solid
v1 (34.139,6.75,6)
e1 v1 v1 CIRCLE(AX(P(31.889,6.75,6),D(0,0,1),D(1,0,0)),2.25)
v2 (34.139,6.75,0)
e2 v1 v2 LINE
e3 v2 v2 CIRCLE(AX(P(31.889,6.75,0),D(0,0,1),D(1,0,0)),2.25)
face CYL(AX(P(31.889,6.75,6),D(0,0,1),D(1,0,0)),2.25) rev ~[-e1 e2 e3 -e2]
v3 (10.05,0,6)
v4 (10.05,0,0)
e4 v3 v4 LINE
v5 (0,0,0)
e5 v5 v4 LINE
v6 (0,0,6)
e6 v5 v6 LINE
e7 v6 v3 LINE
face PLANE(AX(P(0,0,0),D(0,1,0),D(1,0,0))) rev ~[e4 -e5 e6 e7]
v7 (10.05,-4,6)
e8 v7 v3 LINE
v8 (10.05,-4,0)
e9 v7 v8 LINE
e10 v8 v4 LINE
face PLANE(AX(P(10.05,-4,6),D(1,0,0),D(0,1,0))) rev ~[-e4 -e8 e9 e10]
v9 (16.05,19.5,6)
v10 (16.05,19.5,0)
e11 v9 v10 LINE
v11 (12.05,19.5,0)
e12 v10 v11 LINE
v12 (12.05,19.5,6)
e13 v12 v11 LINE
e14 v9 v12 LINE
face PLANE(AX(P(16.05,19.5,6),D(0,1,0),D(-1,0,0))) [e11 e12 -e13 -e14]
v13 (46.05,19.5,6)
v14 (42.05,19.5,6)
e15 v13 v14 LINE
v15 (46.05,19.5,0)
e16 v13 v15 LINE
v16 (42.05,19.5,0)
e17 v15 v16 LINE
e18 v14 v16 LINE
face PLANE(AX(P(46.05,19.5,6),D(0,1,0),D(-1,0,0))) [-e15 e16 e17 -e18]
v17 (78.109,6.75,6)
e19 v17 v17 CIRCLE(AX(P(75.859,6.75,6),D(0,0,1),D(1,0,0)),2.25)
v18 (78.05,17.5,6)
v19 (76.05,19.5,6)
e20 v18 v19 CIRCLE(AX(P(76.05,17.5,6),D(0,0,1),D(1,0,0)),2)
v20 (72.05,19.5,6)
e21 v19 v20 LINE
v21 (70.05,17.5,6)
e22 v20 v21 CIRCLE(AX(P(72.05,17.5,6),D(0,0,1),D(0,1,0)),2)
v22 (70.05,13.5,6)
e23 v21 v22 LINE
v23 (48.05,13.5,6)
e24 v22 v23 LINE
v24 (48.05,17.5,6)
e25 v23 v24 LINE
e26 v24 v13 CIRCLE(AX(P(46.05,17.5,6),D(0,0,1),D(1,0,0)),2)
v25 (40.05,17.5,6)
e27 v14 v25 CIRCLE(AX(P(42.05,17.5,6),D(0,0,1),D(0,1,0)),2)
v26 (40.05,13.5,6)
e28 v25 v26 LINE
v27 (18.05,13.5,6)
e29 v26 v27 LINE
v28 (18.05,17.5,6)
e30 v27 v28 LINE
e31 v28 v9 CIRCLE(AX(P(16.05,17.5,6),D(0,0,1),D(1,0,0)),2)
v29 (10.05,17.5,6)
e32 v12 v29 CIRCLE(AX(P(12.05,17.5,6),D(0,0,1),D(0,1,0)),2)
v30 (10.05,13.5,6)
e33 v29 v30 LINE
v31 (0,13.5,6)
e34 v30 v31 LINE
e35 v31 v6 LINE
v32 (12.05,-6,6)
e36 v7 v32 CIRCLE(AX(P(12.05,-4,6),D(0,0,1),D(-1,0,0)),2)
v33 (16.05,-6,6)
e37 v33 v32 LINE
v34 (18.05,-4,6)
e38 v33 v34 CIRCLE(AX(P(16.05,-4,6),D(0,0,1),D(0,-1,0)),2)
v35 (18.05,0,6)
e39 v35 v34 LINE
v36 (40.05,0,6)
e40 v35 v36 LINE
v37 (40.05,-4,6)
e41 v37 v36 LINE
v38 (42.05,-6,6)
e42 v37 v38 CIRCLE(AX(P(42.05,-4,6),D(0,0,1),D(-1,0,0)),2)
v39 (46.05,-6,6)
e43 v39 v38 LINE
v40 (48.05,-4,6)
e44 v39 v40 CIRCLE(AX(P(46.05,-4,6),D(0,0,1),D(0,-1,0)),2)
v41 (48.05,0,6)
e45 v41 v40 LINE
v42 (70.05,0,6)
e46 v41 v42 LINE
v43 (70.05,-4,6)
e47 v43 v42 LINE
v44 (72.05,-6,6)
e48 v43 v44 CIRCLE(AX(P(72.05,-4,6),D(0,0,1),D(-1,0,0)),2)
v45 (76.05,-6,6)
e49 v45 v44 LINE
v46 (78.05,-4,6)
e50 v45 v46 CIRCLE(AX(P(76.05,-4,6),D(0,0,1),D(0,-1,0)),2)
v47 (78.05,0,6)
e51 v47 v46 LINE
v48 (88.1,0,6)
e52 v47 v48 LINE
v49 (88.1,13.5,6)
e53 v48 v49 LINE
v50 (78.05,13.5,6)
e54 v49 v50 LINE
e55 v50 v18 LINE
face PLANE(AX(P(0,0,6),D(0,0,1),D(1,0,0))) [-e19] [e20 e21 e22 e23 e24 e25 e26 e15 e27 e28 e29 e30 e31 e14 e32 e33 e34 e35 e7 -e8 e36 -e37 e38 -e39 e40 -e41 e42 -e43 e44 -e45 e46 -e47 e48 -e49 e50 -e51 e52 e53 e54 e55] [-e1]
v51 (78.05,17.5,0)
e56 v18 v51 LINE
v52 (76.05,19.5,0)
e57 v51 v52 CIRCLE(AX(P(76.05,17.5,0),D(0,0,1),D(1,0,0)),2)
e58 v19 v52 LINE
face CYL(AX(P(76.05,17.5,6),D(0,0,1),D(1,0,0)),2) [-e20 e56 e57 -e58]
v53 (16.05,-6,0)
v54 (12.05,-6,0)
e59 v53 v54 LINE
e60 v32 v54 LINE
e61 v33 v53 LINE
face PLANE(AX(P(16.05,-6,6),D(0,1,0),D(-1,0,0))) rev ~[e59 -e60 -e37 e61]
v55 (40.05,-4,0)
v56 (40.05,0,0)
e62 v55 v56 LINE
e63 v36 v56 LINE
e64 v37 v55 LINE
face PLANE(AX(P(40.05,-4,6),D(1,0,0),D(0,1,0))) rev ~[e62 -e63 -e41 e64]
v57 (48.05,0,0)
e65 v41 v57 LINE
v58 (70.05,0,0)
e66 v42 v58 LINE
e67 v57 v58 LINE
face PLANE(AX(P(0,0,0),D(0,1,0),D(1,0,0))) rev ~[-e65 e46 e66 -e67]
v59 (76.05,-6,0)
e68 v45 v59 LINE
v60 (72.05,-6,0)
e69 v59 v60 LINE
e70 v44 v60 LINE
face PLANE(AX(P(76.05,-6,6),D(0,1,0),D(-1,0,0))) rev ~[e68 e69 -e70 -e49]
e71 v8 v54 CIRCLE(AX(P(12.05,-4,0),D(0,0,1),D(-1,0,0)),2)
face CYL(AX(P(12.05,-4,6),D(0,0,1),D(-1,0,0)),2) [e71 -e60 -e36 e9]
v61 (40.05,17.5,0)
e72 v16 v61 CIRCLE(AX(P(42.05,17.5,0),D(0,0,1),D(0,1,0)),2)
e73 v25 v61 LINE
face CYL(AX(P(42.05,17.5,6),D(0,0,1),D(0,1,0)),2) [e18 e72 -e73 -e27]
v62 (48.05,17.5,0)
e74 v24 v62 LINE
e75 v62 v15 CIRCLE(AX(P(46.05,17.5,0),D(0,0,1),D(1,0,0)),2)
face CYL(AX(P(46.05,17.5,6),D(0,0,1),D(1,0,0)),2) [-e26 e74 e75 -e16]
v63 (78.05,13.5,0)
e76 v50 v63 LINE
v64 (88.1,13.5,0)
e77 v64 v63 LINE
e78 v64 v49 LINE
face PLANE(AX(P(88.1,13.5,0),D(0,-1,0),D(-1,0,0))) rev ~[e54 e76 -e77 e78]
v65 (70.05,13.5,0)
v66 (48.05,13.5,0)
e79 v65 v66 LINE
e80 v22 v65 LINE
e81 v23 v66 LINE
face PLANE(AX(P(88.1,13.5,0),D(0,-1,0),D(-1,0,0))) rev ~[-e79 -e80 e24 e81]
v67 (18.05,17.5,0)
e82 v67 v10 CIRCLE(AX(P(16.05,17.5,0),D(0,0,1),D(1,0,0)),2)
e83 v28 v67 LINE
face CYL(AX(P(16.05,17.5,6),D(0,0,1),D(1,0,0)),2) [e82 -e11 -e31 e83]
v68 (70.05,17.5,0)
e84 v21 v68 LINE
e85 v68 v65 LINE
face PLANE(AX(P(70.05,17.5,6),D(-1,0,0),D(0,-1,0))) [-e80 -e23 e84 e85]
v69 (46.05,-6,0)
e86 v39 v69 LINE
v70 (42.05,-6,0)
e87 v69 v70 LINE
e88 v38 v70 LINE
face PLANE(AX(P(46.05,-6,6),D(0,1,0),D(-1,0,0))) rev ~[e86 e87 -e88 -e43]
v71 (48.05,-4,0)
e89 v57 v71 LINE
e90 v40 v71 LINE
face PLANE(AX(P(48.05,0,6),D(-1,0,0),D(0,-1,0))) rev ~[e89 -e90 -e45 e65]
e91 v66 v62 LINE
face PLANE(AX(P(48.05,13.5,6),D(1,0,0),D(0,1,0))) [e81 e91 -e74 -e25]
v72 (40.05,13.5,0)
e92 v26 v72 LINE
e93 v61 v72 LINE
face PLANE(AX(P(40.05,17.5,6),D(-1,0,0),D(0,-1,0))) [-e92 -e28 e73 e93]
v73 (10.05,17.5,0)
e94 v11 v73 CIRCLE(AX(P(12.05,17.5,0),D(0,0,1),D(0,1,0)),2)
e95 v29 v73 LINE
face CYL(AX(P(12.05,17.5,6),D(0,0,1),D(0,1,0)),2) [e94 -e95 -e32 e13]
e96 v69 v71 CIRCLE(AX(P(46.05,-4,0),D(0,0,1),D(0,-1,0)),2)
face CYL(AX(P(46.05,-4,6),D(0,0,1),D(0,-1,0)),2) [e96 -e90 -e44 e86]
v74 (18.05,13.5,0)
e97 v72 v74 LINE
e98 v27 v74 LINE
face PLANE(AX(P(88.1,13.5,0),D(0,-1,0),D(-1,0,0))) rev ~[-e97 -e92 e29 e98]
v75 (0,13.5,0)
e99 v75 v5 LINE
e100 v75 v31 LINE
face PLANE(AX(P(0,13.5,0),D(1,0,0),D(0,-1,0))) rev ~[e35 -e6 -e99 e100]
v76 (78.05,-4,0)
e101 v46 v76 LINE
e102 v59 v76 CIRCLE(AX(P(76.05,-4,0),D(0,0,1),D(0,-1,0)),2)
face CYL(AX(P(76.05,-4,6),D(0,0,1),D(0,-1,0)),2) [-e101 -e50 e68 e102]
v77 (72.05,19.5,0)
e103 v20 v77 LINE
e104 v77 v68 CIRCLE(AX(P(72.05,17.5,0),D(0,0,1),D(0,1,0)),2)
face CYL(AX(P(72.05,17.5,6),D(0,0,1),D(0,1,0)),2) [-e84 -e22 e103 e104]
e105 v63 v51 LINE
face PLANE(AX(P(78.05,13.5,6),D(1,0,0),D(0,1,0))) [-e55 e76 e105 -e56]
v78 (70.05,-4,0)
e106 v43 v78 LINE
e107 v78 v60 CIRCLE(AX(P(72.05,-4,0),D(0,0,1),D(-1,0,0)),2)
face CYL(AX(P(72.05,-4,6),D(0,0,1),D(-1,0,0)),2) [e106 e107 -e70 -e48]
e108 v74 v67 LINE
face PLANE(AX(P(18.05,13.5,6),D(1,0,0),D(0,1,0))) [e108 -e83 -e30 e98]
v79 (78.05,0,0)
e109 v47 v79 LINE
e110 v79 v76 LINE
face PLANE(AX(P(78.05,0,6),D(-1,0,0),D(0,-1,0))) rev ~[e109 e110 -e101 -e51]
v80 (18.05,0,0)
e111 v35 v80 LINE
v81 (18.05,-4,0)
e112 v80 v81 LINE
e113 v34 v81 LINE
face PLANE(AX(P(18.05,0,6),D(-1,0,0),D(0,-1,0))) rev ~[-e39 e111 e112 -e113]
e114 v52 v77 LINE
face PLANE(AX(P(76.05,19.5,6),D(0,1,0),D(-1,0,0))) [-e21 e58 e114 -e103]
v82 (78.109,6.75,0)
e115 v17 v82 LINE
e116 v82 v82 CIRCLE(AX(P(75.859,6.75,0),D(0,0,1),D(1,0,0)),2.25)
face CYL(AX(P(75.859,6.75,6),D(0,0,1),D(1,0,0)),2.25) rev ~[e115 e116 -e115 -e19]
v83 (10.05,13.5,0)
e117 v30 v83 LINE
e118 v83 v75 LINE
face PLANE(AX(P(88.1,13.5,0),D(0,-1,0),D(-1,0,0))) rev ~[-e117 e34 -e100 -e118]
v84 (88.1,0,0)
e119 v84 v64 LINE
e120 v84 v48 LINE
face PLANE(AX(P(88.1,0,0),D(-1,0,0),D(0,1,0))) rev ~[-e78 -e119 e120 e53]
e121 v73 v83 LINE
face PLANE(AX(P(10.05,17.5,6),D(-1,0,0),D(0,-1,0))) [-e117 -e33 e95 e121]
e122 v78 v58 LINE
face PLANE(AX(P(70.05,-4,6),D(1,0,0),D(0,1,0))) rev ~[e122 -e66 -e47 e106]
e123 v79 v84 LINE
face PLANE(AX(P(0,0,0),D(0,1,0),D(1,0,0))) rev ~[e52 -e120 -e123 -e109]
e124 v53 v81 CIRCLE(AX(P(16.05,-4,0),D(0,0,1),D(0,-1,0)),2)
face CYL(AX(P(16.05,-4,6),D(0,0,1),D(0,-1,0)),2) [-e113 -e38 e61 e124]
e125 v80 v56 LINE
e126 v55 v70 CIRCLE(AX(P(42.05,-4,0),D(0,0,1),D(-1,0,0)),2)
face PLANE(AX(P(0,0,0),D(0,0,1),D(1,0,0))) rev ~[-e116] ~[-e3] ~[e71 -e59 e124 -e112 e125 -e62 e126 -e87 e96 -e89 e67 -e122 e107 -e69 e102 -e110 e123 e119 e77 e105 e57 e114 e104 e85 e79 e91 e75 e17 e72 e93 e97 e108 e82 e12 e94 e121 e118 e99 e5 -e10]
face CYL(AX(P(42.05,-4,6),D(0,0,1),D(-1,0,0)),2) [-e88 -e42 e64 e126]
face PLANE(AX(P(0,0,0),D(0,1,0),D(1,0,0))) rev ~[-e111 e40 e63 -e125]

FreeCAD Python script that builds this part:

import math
import FreeCAD as App
import Part
import Sketcher
Q = App.Units.Quantity

doc = App.newDocument("Part")
body = doc.addObject("PartDesign::Body", "Body")

# Sketch on XY plane
sketch1 = doc.addObject("Sketcher::SketchObject", "Sketch")
body.addObject(sketch1)
sketch1.AttachmentSupport = (doc.XY_Plane, [""])
sketch1.MapMode = "FlatFace"
sketch1.addGeometry([
    Part.LineSegment(App.Vector(0, 14, 0), App.Vector(0, 0, 0)),
    Part.LineSegment(App.Vector(0, 0, 0), App.Vector(88, 0, 0)),
    Part.LineSegment(App.Vector(88, 0, 0), App.Vector(88, 14, 0)),
    Part.LineSegment(App.Vector(88, 14, 0), App.Vector(0, 14, 0)),
], False)
sketch1.addConstraint([
    Sketcher.Constraint("Coincident", 0, 2, 1, 1),
    Sketcher.Constraint("Coincident", 1, 2, 2, 1),
    Sketcher.Constraint("Coincident", 2, 2, 3, 1),
    Sketcher.Constraint("Coincident", 3, 2, 0, 1),
    Sketcher.Constraint("Vertical", 0),
    Sketcher.Constraint("Horizontal", 1),
    Sketcher.Constraint("Vertical", 2),
    Sketcher.Constraint("Horizontal", 3),
    Sketcher.Constraint("Coincident", 0, 2, -1, 1),
    Sketcher.Constraint("DistanceX", 1, 1, 1, 2, Q("88.1 mm")),
    Sketcher.Constraint("DistanceY", 0, 2, 0, 1, Q("13.5 mm")),
])
pad1 = doc.addObject("PartDesign::Pad", "Pad")
body.addObject(pad1)
pad1.Profile = sketch1
pad1.Length = 6

# Sketch on XY plane
sketch2 = doc.addObject("Sketcher::SketchObject", "Sketch001")
body.addObject(sketch2)
sketch2.AttachmentSupport = (doc.XY_Plane, [""])
sketch2.MapMode = "FlatFace"
sketch2.AttachmentOffset = App.Placement(App.Vector(0, 0, 6), App.Rotation())
sketch2.addGeometry([
    Part.LineSegment(App.Vector(78, 0, 0), App.Vector(70, 0, 0)),  # 0
    Part.LineSegment(App.Vector(70, 0, 0), App.Vector(70, -4, 0)),  # 1
    Part.ArcOfCircle(Part.Circle(App.Vector(72, -4, 0), App.Vector(0, 0, 1), 2), math.radians(180), math.radians(270)),  # 2
    Part.LineSegment(App.Vector(72, -6, 0), App.Vector(76, -6, 0)),  # 3
    Part.ArcOfCircle(Part.Circle(App.Vector(76, -4, 0), App.Vector(0, 0, 1), 2), math.radians(-90), math.radians(0)),  # 4
    Part.LineSegment(App.Vector(78, -4, 0), App.Vector(78, 0, 0)),  # 5
    Part.LineSegment(App.Vector(48, 0, 0), App.Vector(40, 0, 0)),  # 6
    Part.LineSegment(App.Vector(40, 0, 0), App.Vector(40, -4, 0)),  # 7
    Part.ArcOfCircle(Part.Circle(App.Vector(42, -4, 0), App.Vector(0, 0, 1), 2), math.radians(180), math.radians(270)),  # 8
    Part.LineSegment(App.Vector(42, -6, 0), App.Vector(46, -6, 0)),  # 9
    Part.ArcOfCircle(Part.Circle(App.Vector(46, -4, 0), App.Vector(0, 0, 1), 2), math.radians(-90), math.radians(0)),  # 10
    Part.LineSegment(App.Vector(48, -4, 0), App.Vector(48, 0, 0)),  # 11
    Part.LineSegment(App.Vector(18.1, 0, 0), App.Vector(10.1, 0, 0)),  # 12
    Part.LineSegment(App.Vector(10.1, 0, 0), App.Vector(10.1, -4, 0)),  # 13
    Part.ArcOfCircle(Part.Circle(App.Vector(12.1, -4, 0), App.Vector(0, 0, 1), 2), math.radians(180), math.radians(270)),  # 14
    Part.LineSegment(App.Vector(12.1, -6, 0), App.Vector(16.1, -6, 0)),  # 15
    Part.ArcOfCircle(Part.Circle(App.Vector(16.1, -4, 0), App.Vector(0, 0, 1), 2), math.radians(-90), math.radians(0)),  # 16
    Part.LineSegment(App.Vector(18.1, -4, 0), App.Vector(18.1, 0, 0)),  # 17
    Part.LineSegment(App.Vector(10.1, 13.5, 0), App.Vector(18.1, 13.5, 0)),  # 18
    Part.LineSegment(App.Vector(18.1, 13.5, 0), App.Vector(18.1, 17.5, 0)),  # 19
    Part.ArcOfCircle(Part.Circle(App.Vector(16.1, 17.5, 0), App.Vector(0, 0, 1), 2), math.radians(0), math.radians(90)),  # 20
    Part.LineSegment(App.Vector(16.1, 19.5, 0), App.Vector(12.1, 19.5, 0)),  # 21
    Part.ArcOfCircle(Part.Circle(App.Vector(12.1, 17.5, 0), App.Vector(0, 0, 1), 2), math.radians(90), math.radians(180)),  # 22
    Part.LineSegment(App.Vector(10.1, 17.5, 0), App.Vector(10.1, 13.5, 0)),  # 23
    Part.LineSegment(App.Vector(40, 13.5, 0), App.Vector(48, 13.5, 0)),  # 24
    Part.LineSegment(App.Vector(48, 13.5, 0), App.Vector(48, 17.5, 0)),  # 25
    Part.ArcOfCircle(Part.Circle(App.Vector(46, 17.5, 0), App.Vector(0, 0, 1), 2), math.radians(0), math.radians(90)),  # 26
    Part.LineSegment(App.Vector(46, 19.5, 0), App.Vector(42, 19.5, 0)),  # 27
    Part.ArcOfCircle(Part.Circle(App.Vector(42, 17.5, 0), App.Vector(0, 0, 1), 2), math.radians(90), math.radians(180)),  # 28
    Part.LineSegment(App.Vector(40, 17.5, 0), App.Vector(40, 13.5, 0)),  # 29
    Part.LineSegment(App.Vector(70, 13.5, 0), App.Vector(78, 13.5, 0)),  # 30
    Part.LineSegment(App.Vector(78, 13.5, 0), App.Vector(78, 17.5, 0)),  # 31
    Part.ArcOfCircle(Part.Circle(App.Vector(76, 17.5, 0), App.Vector(0, 0, 1), 2), math.radians(0), math.radians(90)),  # 32
    Part.LineSegment(App.Vector(76, 19.5, 0), App.Vector(72, 19.5, 0)),  # 33
    Part.ArcOfCircle(Part.Circle(App.Vector(72, 17.5, 0), App.Vector(0, 0, 1), 2), math.radians(90), math.radians(180)),  # 34
    Part.LineSegment(App.Vector(70, 17.5, 0), App.Vector(70, 13.5, 0)),  # 35
], False)
sketch2.addConstraint([
    Sketcher.Constraint("Coincident", 0, 2, 1, 1),
    Sketcher.Constraint("Tangent", 1, 2, 2, 1),
    Sketcher.Constraint("Tangent", 2, 2, 3, 1),
    Sketcher.Constraint("Tangent", 3, 2, 4, 1),
    Sketcher.Constraint("Tangent", 4, 2, 5, 1),
    Sketcher.Constraint("Coincident", 5, 2, 0, 1),
    Sketcher.Constraint("Coincident", 6, 2, 7, 1),
    Sketcher.Constraint("Tangent", 7, 2, 8, 1),
    Sketcher.Constraint("Tangent", 8, 2, 9, 1),
    Sketcher.Constraint("Tangent", 9, 2, 10, 1),
    Sketcher.Constraint("Tangent", 10, 2, 11, 1),
    Sketcher.Constraint("Coincident", 11, 2, 6, 1),
    Sketcher.Constraint("Coincident", 12, 2, 13, 1),
    Sketcher.Constraint("Tangent", 13, 2, 14, 1),
    Sketcher.Constraint("Tangent", 14, 2, 15, 1),
    Sketcher.Constraint("Tangent", 15, 2, 16, 1),
    Sketcher.Constraint("Tangent", 16, 2, 17, 1),
    Sketcher.Constraint("Coincident", 17, 2, 12, 1),
    Sketcher.Constraint("Coincident", 18, 2, 19, 1),
    Sketcher.Constraint("Tangent", 19, 2, 20, 1),
    Sketcher.Constraint("Tangent", 20, 2, 21, 1),
    Sketcher.Constraint("Tangent", 21, 2, 22, 1),
    Sketcher.Constraint("Tangent", 22, 2, 23, 1),
    Sketcher.Constraint("Coincident", 23, 2, 18, 1),
    Sketcher.Constraint("Coincident", 24, 2, 25, 1),
    Sketcher.Constraint("Tangent", 25, 2, 26, 1),
    Sketcher.Constraint("Tangent", 26, 2, 27, 1),
    Sketcher.Constraint("Tangent", 27, 2, 28, 1),
    Sketcher.Constraint("Tangent", 28, 2, 29, 1),
    Sketcher.Constraint("Coincident", 29, 2, 24, 1),
    Sketcher.Constraint("Coincident", 30, 2, 31, 1),
    Sketcher.Constraint("Tangent", 31, 2, 32, 1),
    Sketcher.Constraint("Tangent", 32, 2, 33, 1),
    Sketcher.Constraint("Tangent", 33, 2, 34, 1),
    Sketcher.Constraint("Tangent", 34, 2, 35, 1),
    Sketcher.Constraint("Coincident", 35, 2, 30, 1),
    Sketcher.Constraint("Horizontal", 0),
    Sketcher.Constraint("Vertical", 1),
    Sketcher.Constraint("Horizontal", 3),
    Sketcher.Constraint("Vertical", 5),
    Sketcher.Constraint("Horizontal", 6),
    Sketcher.Constraint("Vertical", 7),
    Sketcher.Constraint("Horizontal", 9),
    Sketcher.Constraint("Vertical", 11),
    Sketcher.Constraint("Horizontal", 12),
    Sketcher.Constraint("Vertical", 13),
    Sketcher.Constraint("Horizontal", 15),
    Sketcher.Constraint("Vertical", 17),
    Sketcher.Constraint("Horizontal", 18),
    Sketcher.Constraint("Vertical", 19),
    Sketcher.Constraint("Horizontal", 21),
    Sketcher.Constraint("Vertical", 23),
    Sketcher.Constraint("Horizontal", 24),
    Sketcher.Constraint("Vertical", 25),
    Sketcher.Constraint("Horizontal", 27),
    Sketcher.Constraint("Vertical", 29),
    Sketcher.Constraint("Horizontal", 30),
    Sketcher.Constraint("Vertical", 31),
    Sketcher.Constraint("Horizontal", 33),
    Sketcher.Constraint("Vertical", 35),
    Sketcher.Constraint("Equal", 2, 4),
    Sketcher.Constraint("Equal", 4, 8),
    Sketcher.Constraint("Equal", 8, 10),
    Sketcher.Constraint("Equal", 10, 14),
    Sketcher.Constraint("Equal", 14, 16),
    Sketcher.Constraint("Equal", 16, 20),
    Sketcher.Constraint("Equal", 20, 22),
    Sketcher.Constraint("Equal", 22, 26),
    Sketcher.Constraint("Equal", 26, 28),
    Sketcher.Constraint("Equal", 28, 32),
    Sketcher.Constraint("Equal", 32, 34),
    Sketcher.Constraint("PointOnObject", 0, 2, -1),
    Sketcher.Constraint("PointOnObject", 6, 2, -1),
    Sketcher.Constraint("PointOnObject", 12, 2, -1),
    Sketcher.Constraint("Horizontal", 4, 3, 8, 3),
    Sketcher.Constraint("Horizontal", 10, 3, 14, 3),
    Sketcher.Constraint("Horizontal", 22, 3, 26, 3),
    Sketcher.Constraint("Horizontal", 28, 3, 32, 3),
    Sketcher.Constraint("Horizontal", 23, 2, 24, 2),
    Sketcher.Constraint("Horizontal", 29, 2, 30, 2),
    Sketcher.Constraint("Vertical", 16, 3, 20, 3),
    Sketcher.Constraint("Vertical", 14, 3, 22, 3),
    Sketcher.Constraint("Vertical", 10, 3, 26, 3),
    Sketcher.Constraint("Vertical", 8, 3, 28, 3),
    Sketcher.Constraint("Vertical", 4, 3, 32, 3),
    Sketcher.Constraint("Vertical", 2, 3, 34, 3),
    Sketcher.Constraint("Equal", 0, 6),
    Sketcher.Constraint("Equal", 6, 12),
    Sketcher.Constraint("Equal", 33, 1),
    Sketcher.Constraint("Equal", 17, 19),
    Sketcher.Constraint("Radius", 2, Q("2 mm")),
    Sketcher.Constraint("DistanceX", 0, 2, 0, 1, Q("8 mm")),
    Sketcher.Constraint("DistanceX", 8, 3, 2, 3, Q("30 mm")),
    Sketcher.Constraint("DistanceX", 14, 3, 8, 3, Q("30 mm")),
    Sketcher.Constraint("DistanceY", -1, 1, 20, 3, Q("17.5 mm")),
    Sketcher.Constraint("DistanceX", -1, 1, 2, 3, Q("72.05 mm")),
])
pad2 = doc.addObject("PartDesign::Pad", "Pad001")
body.addObject(pad2)
pad2.Profile = sketch2
pad2.Length = 6
pad2.Reversed = True

# Sketch on XY plane
sketch3 = doc.addObject("Sketcher::SketchObject", "Sketch002")
body.addObject(sketch3)
sketch3.AttachmentSupport = (doc.XY_Plane, [""])
sketch3.MapMode = "FlatFace"
sketch3.AttachmentOffset = App.Placement(App.Vector(0, 0, 6), App.Rotation())
sketch3.addGeometry([
    Part.Circle(App.Vector(31.9, 6.8, 0), App.Vector(0, 0, 1), 2.2),
    Part.Circle(App.Vector(75.9, 6.8, 0), App.Vector(0, 0, 1), 2.2),
], False)
sketch3.addConstraint([
    Sketcher.Constraint("Equal", 0, 1),
    Sketcher.Constraint("Horizontal", 0, 3, 1, 3),
    Sketcher.Constraint("Diameter", 0, Q("4.5 mm")),
    Sketcher.Constraint("DistanceX", -1, 1, 0, 3, Q("31.889 mm")),
    Sketcher.Constraint("DistanceX", -1, 1, 1, 3, Q("75.859 mm")),
    Sketcher.Constraint("DistanceY", -1, 1, 0, 3, Q("6.75 mm")),
])
pocket1 = doc.addObject("PartDesign::Pocket", "Pocket")
body.addObject(pocket1)
pocket1.Profile = sketch3
pocket1.Type = "ThroughAll"

doc.recompute()
